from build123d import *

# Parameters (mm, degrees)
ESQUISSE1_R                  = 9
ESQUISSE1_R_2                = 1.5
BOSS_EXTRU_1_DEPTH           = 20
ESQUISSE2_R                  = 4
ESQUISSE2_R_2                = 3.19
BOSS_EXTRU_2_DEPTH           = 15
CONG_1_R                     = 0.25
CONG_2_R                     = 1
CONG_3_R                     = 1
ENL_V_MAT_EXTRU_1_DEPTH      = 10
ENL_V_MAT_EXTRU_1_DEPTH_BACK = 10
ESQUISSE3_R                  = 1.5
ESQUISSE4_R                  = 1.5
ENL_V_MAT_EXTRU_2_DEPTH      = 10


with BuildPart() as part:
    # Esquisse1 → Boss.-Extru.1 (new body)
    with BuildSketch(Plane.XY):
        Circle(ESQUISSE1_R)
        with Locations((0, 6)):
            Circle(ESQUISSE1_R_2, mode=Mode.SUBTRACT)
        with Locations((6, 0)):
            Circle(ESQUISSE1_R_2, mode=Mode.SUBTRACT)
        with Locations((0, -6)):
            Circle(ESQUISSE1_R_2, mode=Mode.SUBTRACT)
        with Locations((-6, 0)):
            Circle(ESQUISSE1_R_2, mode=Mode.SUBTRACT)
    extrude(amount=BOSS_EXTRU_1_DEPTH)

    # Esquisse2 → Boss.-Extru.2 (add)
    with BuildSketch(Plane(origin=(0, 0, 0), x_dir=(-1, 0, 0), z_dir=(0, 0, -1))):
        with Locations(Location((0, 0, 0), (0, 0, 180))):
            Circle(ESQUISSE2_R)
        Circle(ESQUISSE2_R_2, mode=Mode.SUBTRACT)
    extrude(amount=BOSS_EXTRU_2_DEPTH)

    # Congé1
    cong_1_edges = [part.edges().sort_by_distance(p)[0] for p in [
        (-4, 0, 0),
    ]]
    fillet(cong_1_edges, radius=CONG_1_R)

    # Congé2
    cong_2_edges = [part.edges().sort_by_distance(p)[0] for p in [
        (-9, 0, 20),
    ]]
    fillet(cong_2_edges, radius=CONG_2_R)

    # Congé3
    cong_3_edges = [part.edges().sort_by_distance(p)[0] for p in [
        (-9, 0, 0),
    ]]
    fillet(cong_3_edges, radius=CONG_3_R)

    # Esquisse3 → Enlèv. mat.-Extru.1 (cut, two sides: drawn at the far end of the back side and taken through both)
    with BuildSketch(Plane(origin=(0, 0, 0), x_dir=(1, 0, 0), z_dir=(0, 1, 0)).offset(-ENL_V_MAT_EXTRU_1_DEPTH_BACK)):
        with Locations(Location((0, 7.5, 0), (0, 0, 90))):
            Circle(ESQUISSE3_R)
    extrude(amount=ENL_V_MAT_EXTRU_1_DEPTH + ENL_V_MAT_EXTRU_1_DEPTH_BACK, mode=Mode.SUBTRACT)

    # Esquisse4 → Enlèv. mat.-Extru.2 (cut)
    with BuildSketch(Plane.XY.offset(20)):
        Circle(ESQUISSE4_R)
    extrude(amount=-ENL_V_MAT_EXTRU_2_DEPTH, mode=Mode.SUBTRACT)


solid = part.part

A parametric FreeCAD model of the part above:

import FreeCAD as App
import Part
import Sketcher

V = App.Vector


def edges_at(feature, points):
    """Names of the edges that pass closest to the given points."""
    edges = feature.Shape.Edges
    near = lambda p: min(range(len(edges)), key=lambda i: edges[i].distToShape(Part.Vertex(*p))[0])
    return sorted({f"Edge{near(p) + 1}" for p in points})

doc = App.newDocument("Part")
body = doc.addObject("PartDesign::Body", "Body")

sketch1 = doc.addObject("Sketcher::SketchObject", "Sketch")
body.addObject(sketch1)
sketch1.AttachmentSupport = (doc.XY_Plane, [""])
sketch1.MapMode = "FlatFace"
sketch1.addGeometry(Part.Circle(V(0, 0, 0), V(0, 0, 1), 9), False)
sketch1.addGeometry(Part.Circle(V(0, -6, 0), V(0, 0, 1), 1.5), False)
sketch1.addGeometry(Part.Circle(V(-6, 0, 0), V(0, 0, 1), 1.5), False)
sketch1.addGeometry(Part.Circle(V(6, 0, 0), V(0, 0, 1), 1.5), False)
sketch1.addGeometry(Part.Circle(V(0, 6, 0), V(0, 0, 1), 1.5), False)
sketch1.addConstraint(Sketcher.Constraint("Coincident", 0, 3, -1, 1))
sketch1.addConstraint(Sketcher.Constraint("Equal", 1, 2))
sketch1.addConstraint(Sketcher.Constraint("Equal", 2, 3))
sketch1.addConstraint(Sketcher.Constraint("Equal", 3, 4))
sketch1.addConstraint(Sketcher.Constraint("Symmetric", 2, 3, 3, 3, -1, 1))
sketch1.addConstraint(Sketcher.Constraint("Symmetric", 1, 3, 4, 3, -1, 1))
sketch1.addConstraint(Sketcher.Constraint("PointOnObject", 1, 3, -2))
sketch1.addConstraint(Sketcher.Constraint("PointOnObject", 2, 3, -1))
sketch1.addConstraint(Sketcher.Constraint("Diameter", 0, 18.0))
sketch1.addConstraint(Sketcher.Constraint("Diameter", 1, 3.0))
sketch1.addConstraint(Sketcher.Constraint("DistanceY", 1, 3, -1, 1, 6.0))
sketch1.addConstraint(Sketcher.Constraint("DistanceX", 2, 3, -1, 1, 6.0))
pad1 = doc.addObject("PartDesign::Pad", "Pad")
body.addObject(pad1)
pad1.Profile = sketch1
pad1.Length = 20

sketch2 = doc.addObject("Sketcher::SketchObject", "Sketch001")
body.addObject(sketch2)
sketch2.AttachmentSupport = (doc.XY_Plane, [""])
sketch2.MapMode = "FlatFace"
sketch2.addGeometry(Part.Circle(V(0, 0, 0), V(0, 0, 1), 4), False)
sketch2.addGeometry(Part.Circle(V(0, 0, 0), V(0, 0, 1), 3.19), False)
sketch2.addConstraint(Sketcher.Constraint("Coincident", 0, 3, -1, 1))
sketch2.addConstraint(Sketcher.Constraint("Coincident", 1, 3, -1, 1))
sketch2.addConstraint(Sketcher.Constraint("Diameter", 0, 8.0))
sketch2.addConstraint(Sketcher.Constraint("Diameter", 1, 6.38))
pad2 = doc.addObject("PartDesign::Pad", "Pad001")
body.addObject(pad2)
pad2.Profile = sketch2
pad2.Length = 15
pad2.Reversed = True
doc.recompute()

fillet = doc.addObject("PartDesign::Fillet", "Fillet")
body.addObject(fillet)
fillet.Base = (pad2, edges_at(pad2, [(-4, 0, 0)]))
fillet.Radius = 0.25
doc.recompute()

fillet2 = doc.addObject("PartDesign::Fillet", "Fillet001")
body.addObject(fillet2)
fillet2.Base = (fillet, edges_at(fillet, [(-9, 0, 20)]))
fillet2.Radius = 1
doc.recompute()

fillet3 = doc.addObject("PartDesign::Fillet", "Fillet002")
body.addObject(fillet3)
fillet3.Base = (fillet2, edges_at(fillet2, [(-9, 0, 0)]))
fillet3.Radius = 1

sketch3 = doc.addObject("Sketcher::SketchObject", "Sketch002")
body.addObject(sketch3)
sketch3.AttachmentSupport = (doc.XZ_Plane, [""])
sketch3.MapMode = "FlatFace"
sketch3.addGeometry(Part.Circle(V(0, -7.5, 0), V(0, 0, 1), 1.5), False)
sketch3.addConstraint(Sketcher.Constraint("PointOnObject", 0, 3, -2))
sketch3.addConstraint(Sketcher.Constraint("Diameter", 0, 3.0))
sketch3.addConstraint(Sketcher.Constraint("DistanceY", 0, 3, -1, 1, 7.5))
pocket1 = doc.addObject("PartDesign::Pocket", "Pocket")
body.addObject(pocket1)
pocket1.Profile = sketch3
pocket1.Type = "ThroughAll"
pocket1.Midplane = True

sketch4 = doc.addObject("Sketcher::SketchObject", "Sketch003")
body.addObject(sketch4)
sketch4.AttachmentSupport = (doc.XY_Plane, [""])
sketch4.MapMode = "FlatFace"
sketch4.AttachmentOffset = App.Placement(V(0, 0, 20), App.Rotation())
sketch4.addGeometry(Part.Circle(V(0, 0, 0), V(0, 0, 1), 1.5), False)
sketch4.addConstraint(Sketcher.Constraint("Coincident", 0, 3, -1, 1))
sketch4.addConstraint(Sketcher.Constraint("Diameter", 0, 3.0))
pocket2 = doc.addObject("PartDesign::Pocket", "Pocket001")
body.addObject(pocket2)
pocket2.Profile = sketch4
pocket2.Length = 10

doc.recompute()
